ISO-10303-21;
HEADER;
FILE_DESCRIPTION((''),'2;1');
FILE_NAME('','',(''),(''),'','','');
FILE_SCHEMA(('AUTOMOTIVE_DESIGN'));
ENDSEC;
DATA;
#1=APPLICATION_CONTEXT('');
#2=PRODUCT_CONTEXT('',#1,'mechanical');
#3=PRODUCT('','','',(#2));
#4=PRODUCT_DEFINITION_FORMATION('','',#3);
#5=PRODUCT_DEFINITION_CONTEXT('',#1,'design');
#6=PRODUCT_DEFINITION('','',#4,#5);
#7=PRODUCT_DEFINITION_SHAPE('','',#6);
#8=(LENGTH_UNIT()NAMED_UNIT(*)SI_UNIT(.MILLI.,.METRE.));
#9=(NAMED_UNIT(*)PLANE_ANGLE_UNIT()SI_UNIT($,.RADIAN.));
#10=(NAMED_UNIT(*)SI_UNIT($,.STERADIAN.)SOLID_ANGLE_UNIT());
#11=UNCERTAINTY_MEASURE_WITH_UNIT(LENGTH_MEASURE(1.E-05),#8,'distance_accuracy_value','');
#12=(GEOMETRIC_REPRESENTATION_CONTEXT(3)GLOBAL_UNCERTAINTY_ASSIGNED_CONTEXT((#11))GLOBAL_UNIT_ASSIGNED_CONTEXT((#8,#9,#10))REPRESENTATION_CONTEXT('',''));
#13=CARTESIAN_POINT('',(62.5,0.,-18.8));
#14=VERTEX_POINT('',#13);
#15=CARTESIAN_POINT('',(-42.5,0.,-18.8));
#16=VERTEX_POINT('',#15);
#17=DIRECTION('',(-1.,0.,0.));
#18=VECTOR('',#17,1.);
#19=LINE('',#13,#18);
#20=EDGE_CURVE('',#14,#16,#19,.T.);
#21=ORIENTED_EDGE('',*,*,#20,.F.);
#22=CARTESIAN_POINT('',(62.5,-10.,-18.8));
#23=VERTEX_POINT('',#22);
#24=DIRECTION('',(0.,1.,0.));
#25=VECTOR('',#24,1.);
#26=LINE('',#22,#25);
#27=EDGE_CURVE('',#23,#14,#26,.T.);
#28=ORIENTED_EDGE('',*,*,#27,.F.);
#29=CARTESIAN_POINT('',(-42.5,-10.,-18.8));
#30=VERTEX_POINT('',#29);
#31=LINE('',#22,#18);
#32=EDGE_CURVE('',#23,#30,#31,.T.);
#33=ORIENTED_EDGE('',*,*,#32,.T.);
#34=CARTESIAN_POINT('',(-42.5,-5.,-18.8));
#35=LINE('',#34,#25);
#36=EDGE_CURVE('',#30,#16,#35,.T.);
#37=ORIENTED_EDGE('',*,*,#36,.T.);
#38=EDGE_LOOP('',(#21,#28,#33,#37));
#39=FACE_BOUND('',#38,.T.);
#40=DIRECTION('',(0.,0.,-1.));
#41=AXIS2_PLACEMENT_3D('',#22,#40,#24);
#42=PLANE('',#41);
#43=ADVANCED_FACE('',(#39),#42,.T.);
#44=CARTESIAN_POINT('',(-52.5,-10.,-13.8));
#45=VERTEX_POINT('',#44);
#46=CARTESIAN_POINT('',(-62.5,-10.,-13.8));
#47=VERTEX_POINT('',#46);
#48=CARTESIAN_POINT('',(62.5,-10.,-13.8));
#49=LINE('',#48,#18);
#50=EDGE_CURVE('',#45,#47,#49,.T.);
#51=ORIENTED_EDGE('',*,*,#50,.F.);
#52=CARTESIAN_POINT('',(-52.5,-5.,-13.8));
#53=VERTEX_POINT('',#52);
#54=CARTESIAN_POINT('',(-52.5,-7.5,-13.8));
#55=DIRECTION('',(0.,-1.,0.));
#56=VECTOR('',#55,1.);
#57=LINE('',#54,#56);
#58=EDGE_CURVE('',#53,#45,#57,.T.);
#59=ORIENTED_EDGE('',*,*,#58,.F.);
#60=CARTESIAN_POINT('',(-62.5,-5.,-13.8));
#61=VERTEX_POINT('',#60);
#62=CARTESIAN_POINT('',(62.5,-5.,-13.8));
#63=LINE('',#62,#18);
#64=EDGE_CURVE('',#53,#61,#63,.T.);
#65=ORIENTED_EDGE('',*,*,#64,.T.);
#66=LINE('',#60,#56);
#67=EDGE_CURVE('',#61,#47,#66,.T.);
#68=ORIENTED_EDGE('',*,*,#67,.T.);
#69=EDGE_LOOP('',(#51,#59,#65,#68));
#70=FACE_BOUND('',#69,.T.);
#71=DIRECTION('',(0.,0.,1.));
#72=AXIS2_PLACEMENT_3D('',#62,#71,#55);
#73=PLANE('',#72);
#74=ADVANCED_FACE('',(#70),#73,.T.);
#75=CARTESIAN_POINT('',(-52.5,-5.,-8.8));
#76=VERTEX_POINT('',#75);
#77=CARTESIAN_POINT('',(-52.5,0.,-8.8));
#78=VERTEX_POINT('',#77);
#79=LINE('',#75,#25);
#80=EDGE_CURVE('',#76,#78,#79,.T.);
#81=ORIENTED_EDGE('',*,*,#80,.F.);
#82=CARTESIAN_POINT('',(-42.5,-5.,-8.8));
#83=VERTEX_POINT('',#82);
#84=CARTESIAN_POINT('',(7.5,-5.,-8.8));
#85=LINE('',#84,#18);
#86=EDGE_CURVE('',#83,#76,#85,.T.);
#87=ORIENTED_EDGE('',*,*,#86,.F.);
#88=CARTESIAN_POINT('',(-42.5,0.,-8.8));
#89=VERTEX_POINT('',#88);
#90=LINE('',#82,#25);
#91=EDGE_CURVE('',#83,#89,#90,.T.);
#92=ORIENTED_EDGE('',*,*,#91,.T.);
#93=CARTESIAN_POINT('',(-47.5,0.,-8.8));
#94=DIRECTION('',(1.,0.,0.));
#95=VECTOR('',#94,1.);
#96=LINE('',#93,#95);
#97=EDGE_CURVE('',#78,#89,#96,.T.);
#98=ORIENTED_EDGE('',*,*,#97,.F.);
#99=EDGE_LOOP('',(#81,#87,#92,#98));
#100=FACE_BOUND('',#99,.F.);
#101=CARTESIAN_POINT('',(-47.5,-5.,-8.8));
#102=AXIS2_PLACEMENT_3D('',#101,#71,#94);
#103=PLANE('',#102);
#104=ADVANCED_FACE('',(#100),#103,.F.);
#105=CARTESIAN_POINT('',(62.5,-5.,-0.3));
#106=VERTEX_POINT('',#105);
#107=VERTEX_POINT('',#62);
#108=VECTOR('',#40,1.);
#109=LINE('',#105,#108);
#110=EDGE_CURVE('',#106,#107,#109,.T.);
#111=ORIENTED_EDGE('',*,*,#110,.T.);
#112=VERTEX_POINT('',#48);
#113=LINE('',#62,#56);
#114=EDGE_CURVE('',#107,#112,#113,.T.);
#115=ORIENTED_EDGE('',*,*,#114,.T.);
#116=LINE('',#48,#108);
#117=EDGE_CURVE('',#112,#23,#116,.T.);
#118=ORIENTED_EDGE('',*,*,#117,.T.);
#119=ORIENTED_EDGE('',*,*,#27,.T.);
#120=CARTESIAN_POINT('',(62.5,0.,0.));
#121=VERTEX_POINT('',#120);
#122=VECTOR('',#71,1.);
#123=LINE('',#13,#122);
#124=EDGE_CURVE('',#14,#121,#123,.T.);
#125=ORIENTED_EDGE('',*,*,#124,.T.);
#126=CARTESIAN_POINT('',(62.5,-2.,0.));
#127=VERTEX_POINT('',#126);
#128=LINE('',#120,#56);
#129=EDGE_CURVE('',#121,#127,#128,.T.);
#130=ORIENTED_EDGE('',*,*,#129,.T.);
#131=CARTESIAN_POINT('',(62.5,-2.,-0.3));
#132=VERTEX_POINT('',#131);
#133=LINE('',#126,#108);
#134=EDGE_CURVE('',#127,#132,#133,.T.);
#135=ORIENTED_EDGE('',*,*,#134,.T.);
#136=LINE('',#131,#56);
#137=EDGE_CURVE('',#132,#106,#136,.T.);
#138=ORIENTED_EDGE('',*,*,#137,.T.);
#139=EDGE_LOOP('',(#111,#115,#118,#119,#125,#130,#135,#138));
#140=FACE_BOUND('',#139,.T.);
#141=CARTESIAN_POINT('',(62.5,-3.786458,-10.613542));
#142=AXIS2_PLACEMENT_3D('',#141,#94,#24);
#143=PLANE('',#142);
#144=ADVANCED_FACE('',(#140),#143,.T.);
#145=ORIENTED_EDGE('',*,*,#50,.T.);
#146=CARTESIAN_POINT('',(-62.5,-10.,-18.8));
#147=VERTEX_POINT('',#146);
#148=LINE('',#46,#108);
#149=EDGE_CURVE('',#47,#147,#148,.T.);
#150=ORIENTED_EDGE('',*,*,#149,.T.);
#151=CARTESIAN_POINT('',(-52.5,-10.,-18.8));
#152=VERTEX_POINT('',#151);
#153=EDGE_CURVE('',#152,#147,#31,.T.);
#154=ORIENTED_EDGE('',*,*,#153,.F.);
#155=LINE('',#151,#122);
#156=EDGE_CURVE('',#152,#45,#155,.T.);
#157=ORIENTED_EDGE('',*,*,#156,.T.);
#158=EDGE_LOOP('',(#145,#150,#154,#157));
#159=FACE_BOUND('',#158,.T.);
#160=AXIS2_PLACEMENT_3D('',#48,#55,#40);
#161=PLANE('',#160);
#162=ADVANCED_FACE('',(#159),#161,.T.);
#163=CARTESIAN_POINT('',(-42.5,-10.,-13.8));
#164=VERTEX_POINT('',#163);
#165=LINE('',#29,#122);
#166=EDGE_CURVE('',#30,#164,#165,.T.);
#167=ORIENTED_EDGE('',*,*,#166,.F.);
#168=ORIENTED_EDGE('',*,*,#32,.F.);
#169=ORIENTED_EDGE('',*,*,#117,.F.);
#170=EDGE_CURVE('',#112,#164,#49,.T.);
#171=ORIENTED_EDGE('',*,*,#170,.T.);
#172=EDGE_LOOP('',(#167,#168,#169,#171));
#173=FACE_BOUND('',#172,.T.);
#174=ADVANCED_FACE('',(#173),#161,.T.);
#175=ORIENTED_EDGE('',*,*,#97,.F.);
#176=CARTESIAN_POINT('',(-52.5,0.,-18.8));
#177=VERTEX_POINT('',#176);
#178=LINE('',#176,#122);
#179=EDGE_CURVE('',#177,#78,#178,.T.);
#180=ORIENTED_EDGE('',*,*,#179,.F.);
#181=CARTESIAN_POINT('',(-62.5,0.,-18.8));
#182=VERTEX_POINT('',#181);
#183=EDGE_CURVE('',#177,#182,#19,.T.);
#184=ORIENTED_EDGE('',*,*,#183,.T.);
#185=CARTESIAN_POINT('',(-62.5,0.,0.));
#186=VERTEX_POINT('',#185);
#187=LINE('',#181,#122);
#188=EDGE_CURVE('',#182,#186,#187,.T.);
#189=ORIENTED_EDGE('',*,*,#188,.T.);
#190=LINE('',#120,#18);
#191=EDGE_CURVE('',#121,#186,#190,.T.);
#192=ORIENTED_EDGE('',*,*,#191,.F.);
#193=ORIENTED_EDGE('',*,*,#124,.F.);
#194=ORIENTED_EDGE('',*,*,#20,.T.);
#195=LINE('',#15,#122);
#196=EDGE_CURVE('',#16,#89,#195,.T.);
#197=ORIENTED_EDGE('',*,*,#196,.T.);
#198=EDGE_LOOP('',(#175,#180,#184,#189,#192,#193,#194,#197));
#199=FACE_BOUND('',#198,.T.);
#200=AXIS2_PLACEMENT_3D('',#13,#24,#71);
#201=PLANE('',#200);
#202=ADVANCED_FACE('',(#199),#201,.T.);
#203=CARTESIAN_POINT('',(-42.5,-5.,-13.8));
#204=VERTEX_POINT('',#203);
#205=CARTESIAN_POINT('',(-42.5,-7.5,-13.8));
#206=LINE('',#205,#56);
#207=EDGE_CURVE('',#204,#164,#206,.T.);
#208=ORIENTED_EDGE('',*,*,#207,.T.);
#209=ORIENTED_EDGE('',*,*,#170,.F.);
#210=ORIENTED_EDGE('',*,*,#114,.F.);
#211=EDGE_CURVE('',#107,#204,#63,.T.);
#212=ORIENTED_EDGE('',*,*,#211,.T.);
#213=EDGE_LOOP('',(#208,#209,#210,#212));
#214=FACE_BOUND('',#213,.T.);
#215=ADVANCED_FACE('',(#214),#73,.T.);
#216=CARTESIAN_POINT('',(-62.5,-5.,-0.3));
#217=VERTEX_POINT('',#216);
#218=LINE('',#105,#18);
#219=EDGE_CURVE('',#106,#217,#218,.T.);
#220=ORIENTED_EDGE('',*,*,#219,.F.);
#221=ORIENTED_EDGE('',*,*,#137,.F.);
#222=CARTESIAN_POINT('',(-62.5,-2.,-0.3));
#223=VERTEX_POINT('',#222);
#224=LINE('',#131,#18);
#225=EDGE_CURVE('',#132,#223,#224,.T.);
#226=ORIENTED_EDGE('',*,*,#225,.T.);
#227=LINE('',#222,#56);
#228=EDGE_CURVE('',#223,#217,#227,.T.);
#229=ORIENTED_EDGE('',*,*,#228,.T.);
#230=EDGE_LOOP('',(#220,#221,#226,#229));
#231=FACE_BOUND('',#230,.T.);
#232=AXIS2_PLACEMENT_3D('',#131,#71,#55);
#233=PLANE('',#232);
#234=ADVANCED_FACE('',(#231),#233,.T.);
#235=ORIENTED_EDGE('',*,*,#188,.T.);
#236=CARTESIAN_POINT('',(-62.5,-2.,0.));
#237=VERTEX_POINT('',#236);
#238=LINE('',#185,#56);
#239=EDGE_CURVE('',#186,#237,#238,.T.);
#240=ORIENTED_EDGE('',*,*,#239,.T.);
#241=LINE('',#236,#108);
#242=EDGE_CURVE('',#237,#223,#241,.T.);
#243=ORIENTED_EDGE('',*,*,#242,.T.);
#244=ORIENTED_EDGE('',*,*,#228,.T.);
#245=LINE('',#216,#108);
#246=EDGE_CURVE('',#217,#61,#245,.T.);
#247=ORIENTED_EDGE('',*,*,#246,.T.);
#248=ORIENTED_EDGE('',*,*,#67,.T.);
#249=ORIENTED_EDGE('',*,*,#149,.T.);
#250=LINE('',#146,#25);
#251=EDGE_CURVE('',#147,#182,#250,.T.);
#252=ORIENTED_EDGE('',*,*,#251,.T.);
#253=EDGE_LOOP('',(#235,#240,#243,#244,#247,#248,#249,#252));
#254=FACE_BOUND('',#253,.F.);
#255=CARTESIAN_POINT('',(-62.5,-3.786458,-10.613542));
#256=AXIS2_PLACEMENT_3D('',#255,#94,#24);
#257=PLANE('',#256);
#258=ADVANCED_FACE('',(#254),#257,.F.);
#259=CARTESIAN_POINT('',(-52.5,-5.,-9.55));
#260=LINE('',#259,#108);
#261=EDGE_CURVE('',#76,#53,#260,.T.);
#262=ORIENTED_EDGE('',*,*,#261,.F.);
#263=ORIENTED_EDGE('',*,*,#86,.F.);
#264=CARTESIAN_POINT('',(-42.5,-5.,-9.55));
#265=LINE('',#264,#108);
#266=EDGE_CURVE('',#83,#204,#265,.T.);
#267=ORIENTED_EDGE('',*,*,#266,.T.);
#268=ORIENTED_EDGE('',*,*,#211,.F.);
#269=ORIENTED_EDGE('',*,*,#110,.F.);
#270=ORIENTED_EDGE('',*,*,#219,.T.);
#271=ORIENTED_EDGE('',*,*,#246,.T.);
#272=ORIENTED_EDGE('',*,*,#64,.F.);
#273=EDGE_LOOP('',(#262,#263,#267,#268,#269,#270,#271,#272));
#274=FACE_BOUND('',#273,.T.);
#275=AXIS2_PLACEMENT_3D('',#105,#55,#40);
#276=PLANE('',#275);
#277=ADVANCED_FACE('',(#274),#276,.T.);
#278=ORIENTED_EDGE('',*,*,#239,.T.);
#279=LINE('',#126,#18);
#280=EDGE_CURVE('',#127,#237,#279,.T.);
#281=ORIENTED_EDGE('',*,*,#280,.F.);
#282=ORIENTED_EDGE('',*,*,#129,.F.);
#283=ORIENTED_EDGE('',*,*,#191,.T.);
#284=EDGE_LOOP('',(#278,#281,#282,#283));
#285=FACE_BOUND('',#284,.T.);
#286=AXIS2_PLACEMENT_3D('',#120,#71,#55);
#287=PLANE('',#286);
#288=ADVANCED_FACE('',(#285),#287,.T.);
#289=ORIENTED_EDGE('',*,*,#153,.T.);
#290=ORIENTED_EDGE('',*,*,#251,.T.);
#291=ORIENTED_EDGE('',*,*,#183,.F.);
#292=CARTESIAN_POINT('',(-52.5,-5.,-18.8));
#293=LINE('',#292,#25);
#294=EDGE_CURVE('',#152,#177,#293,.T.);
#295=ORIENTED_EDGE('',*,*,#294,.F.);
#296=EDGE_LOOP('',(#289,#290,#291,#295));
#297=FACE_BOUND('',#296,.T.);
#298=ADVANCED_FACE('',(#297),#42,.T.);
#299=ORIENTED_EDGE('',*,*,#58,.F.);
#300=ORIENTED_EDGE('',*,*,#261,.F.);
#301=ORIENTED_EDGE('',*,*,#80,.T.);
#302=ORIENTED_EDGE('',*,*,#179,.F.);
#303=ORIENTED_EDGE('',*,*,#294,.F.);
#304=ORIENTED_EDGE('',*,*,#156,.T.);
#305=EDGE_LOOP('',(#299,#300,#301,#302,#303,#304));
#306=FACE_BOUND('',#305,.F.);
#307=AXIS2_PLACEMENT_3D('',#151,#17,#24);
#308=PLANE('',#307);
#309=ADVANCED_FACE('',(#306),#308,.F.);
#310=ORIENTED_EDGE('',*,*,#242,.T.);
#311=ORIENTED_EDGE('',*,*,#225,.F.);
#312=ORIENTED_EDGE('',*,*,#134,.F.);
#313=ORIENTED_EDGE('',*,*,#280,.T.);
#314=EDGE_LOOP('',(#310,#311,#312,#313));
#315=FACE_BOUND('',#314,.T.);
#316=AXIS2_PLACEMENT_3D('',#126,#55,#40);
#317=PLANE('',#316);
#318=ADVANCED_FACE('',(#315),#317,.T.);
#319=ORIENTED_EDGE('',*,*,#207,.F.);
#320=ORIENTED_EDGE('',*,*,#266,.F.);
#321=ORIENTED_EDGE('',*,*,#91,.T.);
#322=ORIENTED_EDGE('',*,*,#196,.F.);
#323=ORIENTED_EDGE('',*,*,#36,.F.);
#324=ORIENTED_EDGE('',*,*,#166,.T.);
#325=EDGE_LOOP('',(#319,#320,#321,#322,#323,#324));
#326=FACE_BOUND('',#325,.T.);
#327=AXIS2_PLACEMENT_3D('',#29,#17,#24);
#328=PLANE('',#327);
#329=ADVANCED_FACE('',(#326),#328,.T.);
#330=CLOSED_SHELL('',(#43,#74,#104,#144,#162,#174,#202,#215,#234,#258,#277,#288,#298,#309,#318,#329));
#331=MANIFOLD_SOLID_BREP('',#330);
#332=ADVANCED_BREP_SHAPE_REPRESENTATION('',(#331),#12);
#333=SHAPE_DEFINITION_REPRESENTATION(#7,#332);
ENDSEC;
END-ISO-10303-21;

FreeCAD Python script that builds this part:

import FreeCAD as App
import Part
import Sketcher
from FreeCAD import Vector


def add_polygon(sketch, points):
    """Adds a closed chain of lines whose ends are joined by coincident constraints."""
    first, n = sketch.GeometryCount, len(points)
    for a, b in zip(points, points[1:] + points[:1]):
        sketch.addGeometry(Part.LineSegment(App.Vector(*a, 0), App.Vector(*b, 0)), False)
    for i in range(n):
        sketch.addConstraint(Sketcher.Constraint("Coincident", first + i, 2, first + (i + 1) % n, 1))

doc = App.newDocument("Part")
params = doc.addObject("Spreadsheet::Sheet", "Params")
for row, (alias, value) in enumerate([
    ("sketch1_width", "10 mm"),
    ("pad1_length", "10 mm"),
    ("sketch2_width", "2 mm"),
    ("sketch2_width2", "10 mm"),
    ("sketch2_width3", "5 mm"),
    ("sketch2_height", "0.3 mm"),
    ("sketch2_height2", "18.8 mm"),
    ("pad2_length", "125 mm"),
], start=1):
    params.set(f"A{row}", alias)
    params.set(f"B{row}", "=" + value)
    params.setAlias(f"B{row}", alias)

body = doc.addObject("PartDesign::Body", "Body")

# Sketch on XY plane
sketch1 = body.newObject("Sketcher::SketchObject", "Sketch")
sketch1.AttachmentSupport = (doc.getObject("XY_Plane"), [""])
sketch1.MapMode = "FlatFace"
sketch1.AttachmentOffset = App.Placement(Vector(0, 0, -18.8), App.Rotation())
add_polygon(sketch1, [(-52, 0), (-52, -10), (-42, -10), (-42, 0)])  # lines 0-3
sketch1.addConstraint(Sketcher.Constraint("Vertical", 0))
sketch1.addConstraint(Sketcher.Constraint("Horizontal", 1))
sketch1.addConstraint(Sketcher.Constraint("Vertical", 2))
sketch1.addConstraint(Sketcher.Constraint("Horizontal", 3))
sketch1.addConstraint(Sketcher.Constraint("PointOnObject", 2, 2, -1))
sketch1.addConstraint(Sketcher.Constraint("Equal", 3, 0))
sketch1.addConstraint(Sketcher.Constraint("DistanceX", 1, 1, 1, 2, 10.0))
sketch1.addConstraint(Sketcher.Constraint("DistanceX", 0, 2, -1, 1, 52.5))
sketch1.setExpression("Constraints[10]", "Params.sketch1_width")
pad1 = body.newObject("PartDesign::Pad", "Pad")
pad1.Profile = sketch1
pad1.setExpression("Length", "Params.pad1_length")
body2 = doc.addObject("PartDesign::Body", "Body001")

# Sketch on XZ plane
sketch2 = body2.newObject("Sketcher::SketchObject", "Sketch001")
sketch2.AttachmentSupport = (doc.getObject("XZ_Plane001"), [""])
sketch2.MapMode = "FlatFace"
add_polygon(sketch2, [(-60.5, -0.3), (-60.5, 0), (-62.5, 0), (-62.5, -18.8), (-52.5, -18.8), (-52.5, -13.8), (-57.5, -13.8), (-57.5, -0.3)])  # lines 0-7
sketch2.addConstraint(Sketcher.Constraint("Vertical", 0))
sketch2.addConstraint(Sketcher.Constraint("Horizontal", 1))
sketch2.addConstraint(Sketcher.Constraint("Vertical", 2))
sketch2.addConstraint(Sketcher.Constraint("Horizontal", 3))
sketch2.addConstraint(Sketcher.Constraint("Vertical", 4))
sketch2.addConstraint(Sketcher.Constraint("Horizontal", 5))
sketch2.addConstraint(Sketcher.Constraint("Vertical", 6))
sketch2.addConstraint(Sketcher.Constraint("Horizontal", 7))
sketch2.addConstraint(Sketcher.Constraint("PointOnObject", 0, 2, -1))
sketch2.addConstraint(Sketcher.Constraint("Equal", 5, 4))
sketch2.addConstraint(Sketcher.Constraint("DistanceX", 1, 2, 1, 1, 2.0))
sketch2.addConstraint(Sketcher.Constraint("DistanceX", 3, 1, 3, 2, 10.0))
sketch2.addConstraint(Sketcher.Constraint("DistanceX", 5, 2, 5, 1, 5.0))
sketch2.addConstraint(Sketcher.Constraint("DistanceY", 0, 1, 0, 2, 0.3))
sketch2.addConstraint(Sketcher.Constraint("DistanceY", 2, 2, 2, 1, 18.8))
sketch2.addConstraint(Sketcher.Constraint("DistanceX", 0, 2, -1, 1, 60.5))
sketch2.setExpression("Constraints[18]", "Params.sketch2_width")
sketch2.setExpression("Constraints[19]", "Params.sketch2_width2")
sketch2.setExpression("Constraints[20]", "Params.sketch2_width3")
sketch2.setExpression("Constraints[21]", "Params.sketch2_height")
sketch2.setExpression("Constraints[22]", "Params.sketch2_height2")
pad2 = body2.newObject("PartDesign::Pad", "Pad001")
pad2.Profile = sketch2
pad2.setExpression("Length", "Params.pad2_length")
body3 = doc.addObject("PartDesign::Body", "Body002")
doc.recompute()

body2.Placement = App.Placement(Vector(62.5, -62.5, 0), App.Rotation(Vector(0, 0, 1), 270))
boolean = body3.newObject("PartDesign::Boolean", "Boolean")
boolean.Type = "Fuse"
boolean.addObjects([body2])
doc.recompute()

boolean2 = body3.newObject("PartDesign::Boolean", "Boolean001")
boolean2.Type = "Cut"
boolean2.addObjects([body])

doc.recompute()
